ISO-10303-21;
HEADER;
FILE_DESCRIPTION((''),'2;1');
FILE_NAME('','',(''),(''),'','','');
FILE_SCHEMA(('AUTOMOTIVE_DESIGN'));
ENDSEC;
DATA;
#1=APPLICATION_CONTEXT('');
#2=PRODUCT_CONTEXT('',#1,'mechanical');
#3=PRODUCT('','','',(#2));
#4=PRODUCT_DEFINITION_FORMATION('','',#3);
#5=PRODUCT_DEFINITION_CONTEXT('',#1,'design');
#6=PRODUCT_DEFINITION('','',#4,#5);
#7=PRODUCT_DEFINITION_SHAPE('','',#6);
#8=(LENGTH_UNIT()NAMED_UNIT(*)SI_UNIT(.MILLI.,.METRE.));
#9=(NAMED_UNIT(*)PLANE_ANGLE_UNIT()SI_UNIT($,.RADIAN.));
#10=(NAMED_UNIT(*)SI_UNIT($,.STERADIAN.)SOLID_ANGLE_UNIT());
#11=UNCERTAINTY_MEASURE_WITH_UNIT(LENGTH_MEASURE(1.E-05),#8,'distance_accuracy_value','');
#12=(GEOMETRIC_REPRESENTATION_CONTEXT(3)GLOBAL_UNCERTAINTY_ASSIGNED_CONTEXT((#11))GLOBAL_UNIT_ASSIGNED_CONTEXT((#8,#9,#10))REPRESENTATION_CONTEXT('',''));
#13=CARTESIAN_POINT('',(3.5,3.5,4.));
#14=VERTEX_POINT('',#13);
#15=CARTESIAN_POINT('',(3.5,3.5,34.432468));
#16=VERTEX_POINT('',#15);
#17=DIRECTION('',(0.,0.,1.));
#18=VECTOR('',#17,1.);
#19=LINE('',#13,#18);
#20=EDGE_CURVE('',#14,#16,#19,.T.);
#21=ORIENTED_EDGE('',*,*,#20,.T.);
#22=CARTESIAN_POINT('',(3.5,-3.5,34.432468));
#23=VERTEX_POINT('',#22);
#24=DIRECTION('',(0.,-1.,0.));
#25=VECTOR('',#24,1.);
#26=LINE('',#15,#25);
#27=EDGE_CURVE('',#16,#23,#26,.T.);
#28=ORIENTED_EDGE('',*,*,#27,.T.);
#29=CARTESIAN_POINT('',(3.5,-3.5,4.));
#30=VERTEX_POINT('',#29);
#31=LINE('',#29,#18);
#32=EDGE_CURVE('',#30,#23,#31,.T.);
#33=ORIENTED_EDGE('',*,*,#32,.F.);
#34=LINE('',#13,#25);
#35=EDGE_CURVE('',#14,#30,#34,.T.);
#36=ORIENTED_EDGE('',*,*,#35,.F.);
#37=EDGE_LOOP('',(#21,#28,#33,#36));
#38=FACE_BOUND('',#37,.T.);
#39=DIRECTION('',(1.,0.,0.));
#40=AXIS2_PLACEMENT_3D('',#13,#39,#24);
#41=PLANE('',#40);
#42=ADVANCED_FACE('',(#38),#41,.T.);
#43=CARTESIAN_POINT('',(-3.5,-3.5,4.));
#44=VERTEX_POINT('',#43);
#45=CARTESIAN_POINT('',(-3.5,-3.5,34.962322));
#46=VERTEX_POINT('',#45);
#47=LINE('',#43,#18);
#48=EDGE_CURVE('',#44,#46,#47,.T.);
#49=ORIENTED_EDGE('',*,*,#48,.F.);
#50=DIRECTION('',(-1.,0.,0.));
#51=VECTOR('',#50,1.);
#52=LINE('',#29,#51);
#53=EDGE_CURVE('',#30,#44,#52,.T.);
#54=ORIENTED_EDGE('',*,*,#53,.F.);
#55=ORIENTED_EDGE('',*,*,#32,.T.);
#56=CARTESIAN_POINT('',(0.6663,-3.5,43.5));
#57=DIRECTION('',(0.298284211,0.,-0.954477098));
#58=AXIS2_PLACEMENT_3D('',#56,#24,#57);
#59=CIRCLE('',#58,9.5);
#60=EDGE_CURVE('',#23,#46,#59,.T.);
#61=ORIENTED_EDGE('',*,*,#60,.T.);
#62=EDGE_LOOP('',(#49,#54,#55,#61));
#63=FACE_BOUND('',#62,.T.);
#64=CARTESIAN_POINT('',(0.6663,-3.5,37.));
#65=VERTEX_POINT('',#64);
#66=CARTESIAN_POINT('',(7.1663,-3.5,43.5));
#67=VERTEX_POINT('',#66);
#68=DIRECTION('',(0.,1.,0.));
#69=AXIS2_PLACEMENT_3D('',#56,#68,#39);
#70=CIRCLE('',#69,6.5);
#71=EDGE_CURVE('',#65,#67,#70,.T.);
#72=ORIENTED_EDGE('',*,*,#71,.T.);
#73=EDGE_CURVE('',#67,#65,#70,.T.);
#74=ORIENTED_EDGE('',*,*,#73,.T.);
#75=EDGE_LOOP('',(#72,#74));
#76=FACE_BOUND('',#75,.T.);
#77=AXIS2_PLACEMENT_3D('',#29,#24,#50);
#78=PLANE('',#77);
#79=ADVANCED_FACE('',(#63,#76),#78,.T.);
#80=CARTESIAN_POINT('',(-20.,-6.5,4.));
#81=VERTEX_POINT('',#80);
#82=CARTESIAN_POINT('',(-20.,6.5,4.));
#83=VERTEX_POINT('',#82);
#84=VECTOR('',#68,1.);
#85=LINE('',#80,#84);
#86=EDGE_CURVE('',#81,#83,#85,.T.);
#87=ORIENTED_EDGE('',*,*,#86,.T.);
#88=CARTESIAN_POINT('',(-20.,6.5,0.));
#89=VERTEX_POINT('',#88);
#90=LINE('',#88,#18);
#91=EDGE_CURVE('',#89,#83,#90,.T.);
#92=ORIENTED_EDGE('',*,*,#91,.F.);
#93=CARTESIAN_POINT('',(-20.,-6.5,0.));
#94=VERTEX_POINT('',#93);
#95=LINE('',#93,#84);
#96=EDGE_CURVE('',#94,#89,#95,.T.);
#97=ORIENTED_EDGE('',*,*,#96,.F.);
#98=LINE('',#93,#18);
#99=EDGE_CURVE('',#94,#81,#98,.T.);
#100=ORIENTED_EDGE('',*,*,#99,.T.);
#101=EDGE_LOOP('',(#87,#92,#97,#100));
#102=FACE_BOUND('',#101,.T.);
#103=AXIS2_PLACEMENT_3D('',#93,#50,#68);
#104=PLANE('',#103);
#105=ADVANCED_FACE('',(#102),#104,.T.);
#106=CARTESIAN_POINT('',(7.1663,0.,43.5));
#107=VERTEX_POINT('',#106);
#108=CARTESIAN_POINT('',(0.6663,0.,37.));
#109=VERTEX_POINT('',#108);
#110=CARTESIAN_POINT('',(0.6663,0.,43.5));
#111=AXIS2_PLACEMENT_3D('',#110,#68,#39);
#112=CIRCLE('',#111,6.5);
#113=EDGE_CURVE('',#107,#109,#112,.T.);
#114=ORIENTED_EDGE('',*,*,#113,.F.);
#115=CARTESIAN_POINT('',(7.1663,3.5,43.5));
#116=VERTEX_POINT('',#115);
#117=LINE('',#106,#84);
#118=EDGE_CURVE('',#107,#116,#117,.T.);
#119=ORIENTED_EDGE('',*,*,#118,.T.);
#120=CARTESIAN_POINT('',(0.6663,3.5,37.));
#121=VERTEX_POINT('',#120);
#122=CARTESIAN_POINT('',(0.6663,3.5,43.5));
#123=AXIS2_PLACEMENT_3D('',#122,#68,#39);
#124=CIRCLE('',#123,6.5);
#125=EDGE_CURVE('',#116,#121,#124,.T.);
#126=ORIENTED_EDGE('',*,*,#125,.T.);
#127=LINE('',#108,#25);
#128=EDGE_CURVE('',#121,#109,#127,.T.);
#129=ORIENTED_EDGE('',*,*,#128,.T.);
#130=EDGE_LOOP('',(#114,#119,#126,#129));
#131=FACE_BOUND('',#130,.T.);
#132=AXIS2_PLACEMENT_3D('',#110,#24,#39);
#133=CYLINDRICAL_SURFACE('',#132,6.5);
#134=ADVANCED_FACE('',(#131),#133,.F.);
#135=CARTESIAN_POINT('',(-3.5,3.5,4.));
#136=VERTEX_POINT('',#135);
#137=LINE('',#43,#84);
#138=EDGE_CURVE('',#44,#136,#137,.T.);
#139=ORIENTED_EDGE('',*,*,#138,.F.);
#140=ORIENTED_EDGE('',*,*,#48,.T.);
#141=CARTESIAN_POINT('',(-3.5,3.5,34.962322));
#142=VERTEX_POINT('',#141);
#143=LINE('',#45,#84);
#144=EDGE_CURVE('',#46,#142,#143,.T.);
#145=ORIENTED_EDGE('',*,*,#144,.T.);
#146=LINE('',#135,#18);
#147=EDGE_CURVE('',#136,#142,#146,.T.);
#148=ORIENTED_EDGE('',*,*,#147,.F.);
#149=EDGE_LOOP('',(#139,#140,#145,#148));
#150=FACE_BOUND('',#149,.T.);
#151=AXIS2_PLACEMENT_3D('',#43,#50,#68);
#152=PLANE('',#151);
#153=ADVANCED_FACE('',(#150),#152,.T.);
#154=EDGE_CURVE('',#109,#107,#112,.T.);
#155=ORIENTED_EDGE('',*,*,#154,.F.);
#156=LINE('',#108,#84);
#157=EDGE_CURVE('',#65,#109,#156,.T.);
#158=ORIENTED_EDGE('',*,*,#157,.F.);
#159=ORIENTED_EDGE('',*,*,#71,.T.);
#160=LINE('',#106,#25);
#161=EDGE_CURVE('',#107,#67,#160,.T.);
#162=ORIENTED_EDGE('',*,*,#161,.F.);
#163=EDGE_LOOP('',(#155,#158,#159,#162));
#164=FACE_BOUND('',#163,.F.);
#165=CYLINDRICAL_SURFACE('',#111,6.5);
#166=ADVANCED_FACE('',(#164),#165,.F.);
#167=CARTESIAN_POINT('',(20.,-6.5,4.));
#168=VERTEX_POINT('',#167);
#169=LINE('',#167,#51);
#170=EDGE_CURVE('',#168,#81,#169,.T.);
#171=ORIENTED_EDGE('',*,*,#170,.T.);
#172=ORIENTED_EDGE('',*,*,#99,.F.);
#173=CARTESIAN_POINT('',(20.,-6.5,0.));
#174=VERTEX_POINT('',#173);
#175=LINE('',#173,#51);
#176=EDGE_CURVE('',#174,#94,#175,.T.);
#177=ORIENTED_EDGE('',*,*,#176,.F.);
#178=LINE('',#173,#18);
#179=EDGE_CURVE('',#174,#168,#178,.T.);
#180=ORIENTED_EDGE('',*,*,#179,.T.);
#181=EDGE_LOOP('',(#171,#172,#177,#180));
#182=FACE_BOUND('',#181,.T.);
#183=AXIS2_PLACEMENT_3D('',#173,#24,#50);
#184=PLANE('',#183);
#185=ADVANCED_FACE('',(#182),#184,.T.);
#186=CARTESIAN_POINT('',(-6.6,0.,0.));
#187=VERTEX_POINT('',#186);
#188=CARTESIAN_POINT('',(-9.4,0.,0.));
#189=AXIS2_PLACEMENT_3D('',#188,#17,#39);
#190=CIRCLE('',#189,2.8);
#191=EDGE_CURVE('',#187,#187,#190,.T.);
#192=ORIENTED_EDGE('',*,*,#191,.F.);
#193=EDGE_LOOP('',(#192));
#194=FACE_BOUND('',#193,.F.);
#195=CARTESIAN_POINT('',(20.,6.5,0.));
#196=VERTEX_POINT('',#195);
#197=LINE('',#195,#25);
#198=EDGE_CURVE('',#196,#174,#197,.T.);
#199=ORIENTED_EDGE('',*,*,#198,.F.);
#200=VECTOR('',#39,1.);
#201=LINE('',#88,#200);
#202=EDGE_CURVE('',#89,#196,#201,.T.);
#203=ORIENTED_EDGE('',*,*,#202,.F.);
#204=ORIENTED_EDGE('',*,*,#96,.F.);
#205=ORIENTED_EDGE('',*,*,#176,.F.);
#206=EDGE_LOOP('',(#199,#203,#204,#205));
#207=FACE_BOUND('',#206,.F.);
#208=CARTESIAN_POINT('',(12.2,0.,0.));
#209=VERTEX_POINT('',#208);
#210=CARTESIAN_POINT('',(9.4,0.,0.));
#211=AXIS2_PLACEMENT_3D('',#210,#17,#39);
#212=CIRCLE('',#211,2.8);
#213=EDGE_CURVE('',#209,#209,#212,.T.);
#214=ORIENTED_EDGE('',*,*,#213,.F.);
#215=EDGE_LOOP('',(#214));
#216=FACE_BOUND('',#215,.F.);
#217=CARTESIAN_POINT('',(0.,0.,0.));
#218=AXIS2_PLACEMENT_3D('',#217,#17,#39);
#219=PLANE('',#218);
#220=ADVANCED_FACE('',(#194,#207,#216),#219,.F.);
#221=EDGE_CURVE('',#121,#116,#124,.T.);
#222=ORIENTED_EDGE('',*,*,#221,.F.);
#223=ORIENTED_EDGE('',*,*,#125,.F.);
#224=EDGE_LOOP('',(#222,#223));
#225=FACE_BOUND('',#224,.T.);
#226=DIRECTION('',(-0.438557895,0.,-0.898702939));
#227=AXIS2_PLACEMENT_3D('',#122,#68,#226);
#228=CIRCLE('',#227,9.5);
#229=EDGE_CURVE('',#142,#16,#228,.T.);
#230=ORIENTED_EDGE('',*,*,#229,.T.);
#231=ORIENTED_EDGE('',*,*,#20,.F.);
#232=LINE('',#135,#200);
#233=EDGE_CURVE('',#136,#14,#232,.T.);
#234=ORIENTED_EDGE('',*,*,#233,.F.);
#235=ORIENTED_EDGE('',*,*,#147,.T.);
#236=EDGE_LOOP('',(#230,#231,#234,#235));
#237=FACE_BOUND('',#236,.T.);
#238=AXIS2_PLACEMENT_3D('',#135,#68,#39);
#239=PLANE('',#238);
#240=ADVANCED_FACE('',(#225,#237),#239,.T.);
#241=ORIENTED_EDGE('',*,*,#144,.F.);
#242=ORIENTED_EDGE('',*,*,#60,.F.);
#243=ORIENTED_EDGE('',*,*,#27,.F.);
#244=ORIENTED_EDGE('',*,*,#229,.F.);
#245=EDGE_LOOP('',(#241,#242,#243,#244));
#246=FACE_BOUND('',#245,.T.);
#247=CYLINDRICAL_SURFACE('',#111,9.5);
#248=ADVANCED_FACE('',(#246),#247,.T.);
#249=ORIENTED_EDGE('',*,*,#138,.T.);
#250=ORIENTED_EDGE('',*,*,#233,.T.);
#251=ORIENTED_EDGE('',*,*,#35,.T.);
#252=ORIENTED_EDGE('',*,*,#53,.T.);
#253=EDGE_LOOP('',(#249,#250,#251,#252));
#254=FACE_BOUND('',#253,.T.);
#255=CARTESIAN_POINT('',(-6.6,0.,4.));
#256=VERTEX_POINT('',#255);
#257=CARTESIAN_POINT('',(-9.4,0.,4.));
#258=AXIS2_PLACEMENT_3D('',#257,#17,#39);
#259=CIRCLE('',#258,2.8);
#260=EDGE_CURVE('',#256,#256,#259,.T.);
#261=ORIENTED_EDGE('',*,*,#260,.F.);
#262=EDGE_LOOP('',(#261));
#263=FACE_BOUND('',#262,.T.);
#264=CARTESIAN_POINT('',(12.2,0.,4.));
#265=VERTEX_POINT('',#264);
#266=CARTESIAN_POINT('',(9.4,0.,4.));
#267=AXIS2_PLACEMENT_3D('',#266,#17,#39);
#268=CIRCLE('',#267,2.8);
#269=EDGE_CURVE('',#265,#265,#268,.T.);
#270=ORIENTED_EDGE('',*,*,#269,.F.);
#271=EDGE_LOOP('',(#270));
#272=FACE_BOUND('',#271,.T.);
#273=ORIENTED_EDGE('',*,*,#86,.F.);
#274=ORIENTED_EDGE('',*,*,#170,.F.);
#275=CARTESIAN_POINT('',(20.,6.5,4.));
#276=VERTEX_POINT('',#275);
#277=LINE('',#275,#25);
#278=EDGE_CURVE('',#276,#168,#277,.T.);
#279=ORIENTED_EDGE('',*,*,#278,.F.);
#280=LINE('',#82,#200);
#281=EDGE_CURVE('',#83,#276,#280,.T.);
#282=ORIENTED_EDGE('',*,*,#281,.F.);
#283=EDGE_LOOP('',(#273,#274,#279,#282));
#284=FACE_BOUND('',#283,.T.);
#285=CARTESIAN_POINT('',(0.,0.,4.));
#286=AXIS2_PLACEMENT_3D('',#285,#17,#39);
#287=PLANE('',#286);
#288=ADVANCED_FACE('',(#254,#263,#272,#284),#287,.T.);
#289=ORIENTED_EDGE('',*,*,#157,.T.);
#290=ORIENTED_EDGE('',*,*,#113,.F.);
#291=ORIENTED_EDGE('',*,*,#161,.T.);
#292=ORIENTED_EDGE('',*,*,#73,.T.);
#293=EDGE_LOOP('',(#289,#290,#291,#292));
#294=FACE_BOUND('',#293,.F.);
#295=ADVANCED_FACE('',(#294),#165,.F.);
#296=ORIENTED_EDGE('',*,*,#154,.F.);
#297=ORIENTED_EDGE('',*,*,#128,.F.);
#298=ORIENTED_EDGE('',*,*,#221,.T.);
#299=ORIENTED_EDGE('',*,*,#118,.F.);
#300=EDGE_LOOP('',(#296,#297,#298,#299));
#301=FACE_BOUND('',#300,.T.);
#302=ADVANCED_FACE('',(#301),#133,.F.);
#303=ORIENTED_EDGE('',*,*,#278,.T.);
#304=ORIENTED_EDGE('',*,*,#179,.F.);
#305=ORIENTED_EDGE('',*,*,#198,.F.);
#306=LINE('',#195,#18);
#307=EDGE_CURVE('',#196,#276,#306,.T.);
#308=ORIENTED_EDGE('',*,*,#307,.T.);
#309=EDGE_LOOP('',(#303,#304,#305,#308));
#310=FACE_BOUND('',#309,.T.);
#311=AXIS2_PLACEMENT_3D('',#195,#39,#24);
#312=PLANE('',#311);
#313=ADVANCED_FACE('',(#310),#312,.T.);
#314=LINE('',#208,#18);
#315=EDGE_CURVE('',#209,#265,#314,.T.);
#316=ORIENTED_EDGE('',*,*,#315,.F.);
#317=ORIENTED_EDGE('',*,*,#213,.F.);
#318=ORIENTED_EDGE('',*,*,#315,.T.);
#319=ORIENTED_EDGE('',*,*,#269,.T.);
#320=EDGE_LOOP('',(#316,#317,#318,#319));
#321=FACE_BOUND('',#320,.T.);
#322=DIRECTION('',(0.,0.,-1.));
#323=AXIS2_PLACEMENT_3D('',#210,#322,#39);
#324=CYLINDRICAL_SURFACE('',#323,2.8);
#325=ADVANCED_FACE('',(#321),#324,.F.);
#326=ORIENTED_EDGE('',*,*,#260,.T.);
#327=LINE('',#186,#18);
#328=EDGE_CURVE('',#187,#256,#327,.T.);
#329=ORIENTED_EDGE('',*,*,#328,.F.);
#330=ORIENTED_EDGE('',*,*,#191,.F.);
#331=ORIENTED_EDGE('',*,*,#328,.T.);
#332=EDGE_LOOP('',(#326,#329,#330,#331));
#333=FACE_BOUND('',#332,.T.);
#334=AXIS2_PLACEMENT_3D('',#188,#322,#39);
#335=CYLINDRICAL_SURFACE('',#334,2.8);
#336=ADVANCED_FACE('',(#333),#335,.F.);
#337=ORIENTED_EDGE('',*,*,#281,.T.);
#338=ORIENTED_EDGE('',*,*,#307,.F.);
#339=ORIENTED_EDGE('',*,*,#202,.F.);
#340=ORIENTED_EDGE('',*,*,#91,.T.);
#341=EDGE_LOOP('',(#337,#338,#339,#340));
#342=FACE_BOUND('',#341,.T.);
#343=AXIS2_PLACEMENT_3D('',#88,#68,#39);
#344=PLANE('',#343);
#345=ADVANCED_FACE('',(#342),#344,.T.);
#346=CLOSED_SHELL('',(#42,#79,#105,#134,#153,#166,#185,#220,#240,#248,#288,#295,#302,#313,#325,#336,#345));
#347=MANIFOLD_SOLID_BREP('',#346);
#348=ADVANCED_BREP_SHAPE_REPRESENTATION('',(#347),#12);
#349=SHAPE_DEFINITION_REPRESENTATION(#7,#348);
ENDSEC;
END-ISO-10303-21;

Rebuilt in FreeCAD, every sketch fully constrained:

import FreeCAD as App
import Part
import Sketcher

V = App.Vector


def add_polygon(sketch, points):
    """Adds a closed chain of lines whose ends are joined by coincident constraints."""
    first, n = sketch.GeometryCount, len(points)
    for a, b in zip(points, points[1:] + points[:1]):
        sketch.addGeometry(Part.LineSegment(App.Vector(*a, 0), App.Vector(*b, 0)), False)
    for i in range(n):
        sketch.addConstraint(Sketcher.Constraint("Coincident", first + i, 2, first + (i + 1) % n, 1))

doc = App.newDocument("Part")
body = doc.addObject("PartDesign::Body", "Body")

# Sketch on XY plane
sketch1 = body.newObject("Sketcher::SketchObject", "Sketch")
sketch1.AttachmentSupport = (doc.getObject("XY_Plane"), [""])
sketch1.MapMode = "FlatFace"
add_polygon(sketch1, [(20, 6.5), (-20, 6.5), (-20, -6.5), (20, -6.5)])  # lines 0-3
sketch1.addGeometry(Part.Circle(V(-9.4, 0, 0), V(0, 0, 1), 2.8), False)  # 4
sketch1.addGeometry(Part.Circle(V(9.4, 0, 0), V(0, 0, 1), 2.8), False)  # 5
sketch1.addConstraint(Sketcher.Constraint("Horizontal", 0))
sketch1.addConstraint(Sketcher.Constraint("Vertical", 1))
sketch1.addConstraint(Sketcher.Constraint("Horizontal", 2))
sketch1.addConstraint(Sketcher.Constraint("Vertical", 3))
sketch1.addConstraint(Sketcher.Constraint("Equal", 4, 5))
sketch1.addConstraint(Sketcher.Constraint("Symmetric", 4, 3, 5, 3, -1, 1))
sketch1.addConstraint(Sketcher.Constraint("Symmetric", 0, 2, 2, 2, -1, 1))
sketch1.addConstraint(Sketcher.Constraint("PointOnObject", 4, 3, -1))
sketch1.addConstraint(Sketcher.Constraint("Diameter", 4, 5.6))
sketch1.addConstraint(Sketcher.Constraint("DistanceX", 0, 2, 0, 1, 40.0))
sketch1.addConstraint(Sketcher.Constraint("DistanceY", 1, 2, 1, 1, 13.0))
sketch1.addConstraint(Sketcher.Constraint("DistanceX", 4, 3, -1, 1, 9.4))
pad1 = body.newObject("PartDesign::Pad", "Pad")
pad1.Profile = sketch1
pad1.Length = 4

# Sketch on XY plane
sketch2 = body.newObject("Sketcher::SketchObject", "Sketch001")
sketch2.AttachmentSupport = (doc.getObject("XY_Plane"), [""])
sketch2.MapMode = "FlatFace"
sketch2.AttachmentOffset = App.Placement(V(0, 0, 4), App.Rotation())
add_polygon(sketch2, [(-3.5, -3.5), (3.5, -3.5), (3.5, 3.5), (-3.5, 3.5)])  # lines 0-3
sketch2.addConstraint(Sketcher.Constraint("Horizontal", 0))
sketch2.addConstraint(Sketcher.Constraint("Vertical", 1))
sketch2.addConstraint(Sketcher.Constraint("Horizontal", 2))
sketch2.addConstraint(Sketcher.Constraint("Vertical", 3))
sketch2.addConstraint(Sketcher.Constraint("Symmetric", 0, 2, 2, 2, -1, 1))
sketch2.addConstraint(Sketcher.Constraint("Equal", 2, 1))
sketch2.addConstraint(Sketcher.Constraint("DistanceX", 0, 1, 0, 2, 7.0))
pad2 = body.newObject("PartDesign::Pad", "Pad001")
pad2.Profile = sketch2
pad2.Length = 33

# Sketch on XZ plane
sketch3 = body.newObject("Sketcher::SketchObject", "Sketch002")
sketch3.AttachmentSupport = (doc.getObject("XZ_Plane"), [""])
sketch3.MapMode = "FlatFace"
sketch3.addGeometry(Part.Circle(V(0.6663, 43.5, 0), V(0, 0, 1), 9.5), False)
sketch3.addGeometry(Part.Circle(V(0.6663, 43.5, 0), V(0, 0, 1), 6.5), False)
sketch3.addConstraint(Sketcher.Constraint("Coincident", 1, 3, 0, 3))
sketch3.addConstraint(Sketcher.Constraint("Diameter", 0, 19.0))
sketch3.addConstraint(Sketcher.Constraint("Diameter", 1, 13.0))
sketch3.addConstraint(Sketcher.Constraint("DistanceY", -1, 1, 0, 3, 43.5))
sketch3.addConstraint(Sketcher.Constraint("DistanceX", -1, 1, 0, 3, 0.6663))
pad3 = body.newObject("PartDesign::Pad", "Pad002")
pad3.Profile = sketch3
pad3.Length = 7
pad3.Midplane = True

doc.recompute()
